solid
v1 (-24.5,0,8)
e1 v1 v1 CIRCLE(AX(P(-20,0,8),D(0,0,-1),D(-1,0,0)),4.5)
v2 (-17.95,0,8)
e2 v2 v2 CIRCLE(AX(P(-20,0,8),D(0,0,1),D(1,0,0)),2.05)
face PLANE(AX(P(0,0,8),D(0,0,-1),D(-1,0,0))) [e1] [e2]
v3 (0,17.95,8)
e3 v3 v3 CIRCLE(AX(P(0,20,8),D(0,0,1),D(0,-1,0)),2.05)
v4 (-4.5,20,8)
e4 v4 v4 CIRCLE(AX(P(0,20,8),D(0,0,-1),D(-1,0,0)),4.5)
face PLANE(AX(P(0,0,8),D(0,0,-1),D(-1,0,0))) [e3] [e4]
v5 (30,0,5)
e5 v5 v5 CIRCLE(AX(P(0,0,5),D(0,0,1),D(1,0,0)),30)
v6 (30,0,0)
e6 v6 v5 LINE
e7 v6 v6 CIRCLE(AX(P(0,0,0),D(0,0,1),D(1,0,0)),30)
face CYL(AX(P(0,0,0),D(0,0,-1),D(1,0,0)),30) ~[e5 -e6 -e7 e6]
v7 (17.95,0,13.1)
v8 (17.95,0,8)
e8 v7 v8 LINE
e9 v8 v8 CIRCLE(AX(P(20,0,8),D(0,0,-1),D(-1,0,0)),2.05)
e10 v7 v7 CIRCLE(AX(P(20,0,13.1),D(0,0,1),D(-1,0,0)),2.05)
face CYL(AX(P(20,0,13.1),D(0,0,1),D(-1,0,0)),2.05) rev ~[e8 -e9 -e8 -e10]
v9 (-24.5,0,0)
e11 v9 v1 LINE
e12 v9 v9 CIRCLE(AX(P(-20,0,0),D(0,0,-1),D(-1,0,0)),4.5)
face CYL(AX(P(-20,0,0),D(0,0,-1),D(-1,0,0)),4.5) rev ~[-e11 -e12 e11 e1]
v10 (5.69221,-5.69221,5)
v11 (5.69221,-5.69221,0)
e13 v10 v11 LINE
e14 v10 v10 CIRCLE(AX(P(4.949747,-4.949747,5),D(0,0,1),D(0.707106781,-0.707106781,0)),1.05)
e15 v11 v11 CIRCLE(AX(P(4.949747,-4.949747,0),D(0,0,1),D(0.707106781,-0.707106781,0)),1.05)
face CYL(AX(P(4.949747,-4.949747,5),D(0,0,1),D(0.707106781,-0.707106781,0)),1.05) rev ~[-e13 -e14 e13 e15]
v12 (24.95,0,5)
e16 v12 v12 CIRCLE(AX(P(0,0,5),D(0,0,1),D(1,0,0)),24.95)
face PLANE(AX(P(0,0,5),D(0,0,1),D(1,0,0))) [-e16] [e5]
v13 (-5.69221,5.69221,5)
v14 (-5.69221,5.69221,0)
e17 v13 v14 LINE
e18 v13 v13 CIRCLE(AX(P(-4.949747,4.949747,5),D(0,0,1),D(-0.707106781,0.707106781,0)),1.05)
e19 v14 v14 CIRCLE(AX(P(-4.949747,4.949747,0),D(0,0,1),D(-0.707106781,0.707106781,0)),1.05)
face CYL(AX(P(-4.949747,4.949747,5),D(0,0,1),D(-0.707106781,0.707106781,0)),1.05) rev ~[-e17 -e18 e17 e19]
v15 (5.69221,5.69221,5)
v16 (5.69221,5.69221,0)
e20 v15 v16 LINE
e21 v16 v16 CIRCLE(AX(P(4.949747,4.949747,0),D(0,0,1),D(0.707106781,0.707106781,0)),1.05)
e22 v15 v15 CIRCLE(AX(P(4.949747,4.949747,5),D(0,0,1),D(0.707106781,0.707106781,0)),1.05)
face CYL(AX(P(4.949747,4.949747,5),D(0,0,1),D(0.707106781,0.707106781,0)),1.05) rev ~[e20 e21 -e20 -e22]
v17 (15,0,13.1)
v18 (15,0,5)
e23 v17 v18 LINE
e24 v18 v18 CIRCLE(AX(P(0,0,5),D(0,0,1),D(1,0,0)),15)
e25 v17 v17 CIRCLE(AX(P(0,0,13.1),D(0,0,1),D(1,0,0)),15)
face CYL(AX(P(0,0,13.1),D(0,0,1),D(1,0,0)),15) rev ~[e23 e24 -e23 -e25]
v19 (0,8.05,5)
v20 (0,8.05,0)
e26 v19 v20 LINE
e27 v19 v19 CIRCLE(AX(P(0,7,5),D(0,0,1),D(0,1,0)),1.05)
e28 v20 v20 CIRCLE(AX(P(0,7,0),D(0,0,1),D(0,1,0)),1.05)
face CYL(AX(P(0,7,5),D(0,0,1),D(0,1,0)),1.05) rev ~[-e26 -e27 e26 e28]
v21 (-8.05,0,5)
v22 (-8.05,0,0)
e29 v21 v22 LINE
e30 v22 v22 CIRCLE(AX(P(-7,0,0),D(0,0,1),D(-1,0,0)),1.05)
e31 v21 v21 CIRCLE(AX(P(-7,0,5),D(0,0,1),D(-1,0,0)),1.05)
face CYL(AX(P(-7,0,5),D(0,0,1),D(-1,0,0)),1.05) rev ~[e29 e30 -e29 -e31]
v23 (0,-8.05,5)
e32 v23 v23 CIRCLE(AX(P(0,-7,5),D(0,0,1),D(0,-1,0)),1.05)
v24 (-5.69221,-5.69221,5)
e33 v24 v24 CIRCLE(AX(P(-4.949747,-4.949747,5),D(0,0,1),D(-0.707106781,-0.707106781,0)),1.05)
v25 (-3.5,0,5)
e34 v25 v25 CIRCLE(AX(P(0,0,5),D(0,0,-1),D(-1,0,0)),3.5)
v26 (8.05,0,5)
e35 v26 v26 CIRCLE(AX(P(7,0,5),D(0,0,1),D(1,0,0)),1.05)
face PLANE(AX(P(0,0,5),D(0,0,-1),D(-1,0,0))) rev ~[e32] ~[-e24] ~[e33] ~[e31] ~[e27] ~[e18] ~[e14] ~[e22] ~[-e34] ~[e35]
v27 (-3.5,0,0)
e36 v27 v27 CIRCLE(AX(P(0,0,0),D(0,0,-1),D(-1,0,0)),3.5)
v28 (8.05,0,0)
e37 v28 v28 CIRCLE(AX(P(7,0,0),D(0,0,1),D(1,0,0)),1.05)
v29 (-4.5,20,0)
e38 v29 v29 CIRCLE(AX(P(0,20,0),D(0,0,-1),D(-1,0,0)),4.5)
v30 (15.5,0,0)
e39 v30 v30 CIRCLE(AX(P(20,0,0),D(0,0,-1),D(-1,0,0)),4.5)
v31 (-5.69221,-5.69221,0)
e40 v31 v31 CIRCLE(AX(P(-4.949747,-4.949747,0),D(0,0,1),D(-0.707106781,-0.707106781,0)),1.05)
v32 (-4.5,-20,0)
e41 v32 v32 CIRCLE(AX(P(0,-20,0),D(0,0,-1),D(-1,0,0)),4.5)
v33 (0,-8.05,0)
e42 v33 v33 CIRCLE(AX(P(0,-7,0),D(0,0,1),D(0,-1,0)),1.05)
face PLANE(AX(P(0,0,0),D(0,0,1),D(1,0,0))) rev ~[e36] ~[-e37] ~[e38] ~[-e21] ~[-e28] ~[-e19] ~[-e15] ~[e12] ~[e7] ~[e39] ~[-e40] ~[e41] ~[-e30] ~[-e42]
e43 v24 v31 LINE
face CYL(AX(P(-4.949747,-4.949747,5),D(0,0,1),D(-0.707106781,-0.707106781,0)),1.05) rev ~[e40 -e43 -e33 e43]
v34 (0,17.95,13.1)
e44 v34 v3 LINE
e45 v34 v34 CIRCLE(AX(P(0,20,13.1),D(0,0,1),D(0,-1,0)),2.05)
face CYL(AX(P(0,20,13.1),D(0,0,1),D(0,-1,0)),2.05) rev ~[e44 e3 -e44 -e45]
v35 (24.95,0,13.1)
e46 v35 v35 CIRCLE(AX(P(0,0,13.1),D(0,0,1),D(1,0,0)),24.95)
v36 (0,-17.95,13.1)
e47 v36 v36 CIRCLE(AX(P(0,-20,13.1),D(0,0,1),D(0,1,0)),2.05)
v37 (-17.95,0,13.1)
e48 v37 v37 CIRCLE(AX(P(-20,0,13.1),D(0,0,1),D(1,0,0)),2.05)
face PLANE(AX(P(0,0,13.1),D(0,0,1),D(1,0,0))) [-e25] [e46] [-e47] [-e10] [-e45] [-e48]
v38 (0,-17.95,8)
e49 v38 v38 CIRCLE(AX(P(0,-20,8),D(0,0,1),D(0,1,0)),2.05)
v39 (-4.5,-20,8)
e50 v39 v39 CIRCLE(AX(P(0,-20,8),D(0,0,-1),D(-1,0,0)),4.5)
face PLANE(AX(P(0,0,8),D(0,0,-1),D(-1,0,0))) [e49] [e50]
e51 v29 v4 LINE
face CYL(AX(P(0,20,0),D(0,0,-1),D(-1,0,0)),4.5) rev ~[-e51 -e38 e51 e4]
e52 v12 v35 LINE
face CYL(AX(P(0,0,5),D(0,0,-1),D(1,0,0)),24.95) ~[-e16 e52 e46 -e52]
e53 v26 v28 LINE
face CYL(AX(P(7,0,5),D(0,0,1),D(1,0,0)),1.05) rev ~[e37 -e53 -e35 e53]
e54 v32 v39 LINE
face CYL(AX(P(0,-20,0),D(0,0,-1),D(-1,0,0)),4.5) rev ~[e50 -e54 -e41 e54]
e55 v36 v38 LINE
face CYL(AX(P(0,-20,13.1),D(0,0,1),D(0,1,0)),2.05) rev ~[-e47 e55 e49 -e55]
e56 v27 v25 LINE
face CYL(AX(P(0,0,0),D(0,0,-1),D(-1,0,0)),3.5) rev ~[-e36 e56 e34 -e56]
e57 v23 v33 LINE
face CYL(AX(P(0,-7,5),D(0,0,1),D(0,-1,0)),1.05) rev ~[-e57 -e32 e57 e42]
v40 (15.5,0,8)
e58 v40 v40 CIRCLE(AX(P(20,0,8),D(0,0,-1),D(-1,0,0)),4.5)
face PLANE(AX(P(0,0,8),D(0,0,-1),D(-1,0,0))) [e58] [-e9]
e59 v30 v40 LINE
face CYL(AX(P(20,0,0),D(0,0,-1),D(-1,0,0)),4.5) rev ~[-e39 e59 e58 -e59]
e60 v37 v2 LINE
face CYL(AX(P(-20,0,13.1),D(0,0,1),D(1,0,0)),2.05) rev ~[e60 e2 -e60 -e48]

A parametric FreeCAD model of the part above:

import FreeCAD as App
import Part
import Sketcher

V = App.Vector

doc = App.newDocument("Part")
body = doc.addObject("PartDesign::Body", "Body")

sketch1 = body.newObject("Sketcher::SketchObject", "Sketch")
sketch1.AttachmentSupport = (doc.getObject("XY_Plane"), [""])
sketch1.MapMode = "FlatFace"
sketch1.addGeometry(Part.Circle(V(0, 0, 0), V(0, 0, 1), 30), False)
sketch1.addConstraint([
    Sketcher.Constraint("Coincident", 0, 3, -1, 1),
    Sketcher.Constraint("Diameter", 0, 60.0),
])
pad1 = body.newObject("PartDesign::Pad", "Pad")
pad1.Profile = sketch1
pad1.Length = 5

sketch2 = body.newObject("Sketcher::SketchObject", "Sketch001")
sketch2.AttachmentSupport = (doc.getObject("XY_Plane"), [""])
sketch2.MapMode = "FlatFace"
sketch2.AttachmentOffset = App.Placement(V(0, 0, 5), App.Rotation())
sketch2.addGeometry(Part.Circle(V(0, 0, 0), V(0, 0, 1), 25), False)
sketch2.addConstraint([
    Sketcher.Constraint("Coincident", 0, 3, -1, 1),
    Sketcher.Constraint("Diameter", 0, 49.9),
])
pad2 = body.newObject("PartDesign::Pad", "Pad001")
pad2.Profile = sketch2
pad2.Length = 8.1

sketch3 = body.newObject("Sketcher::SketchObject", "Sketch002")
sketch3.AttachmentSupport = (doc.getObject("XY_Plane"), [""])
sketch3.MapMode = "FlatFace"
sketch3.AttachmentOffset = App.Placement(V(0, 0, 13.1), App.Rotation())
sketch3.addGeometry(Part.Circle(V(0, 0, 0), V(0, 0, 1), 15), False)
sketch3.addConstraint([
    Sketcher.Constraint("Coincident", 0, 3, -1, 1),
    Sketcher.Constraint("Diameter", 0, 30.0),
])
pocket1 = body.newObject("PartDesign::Pocket", "Pocket")
pocket1.Profile = sketch3
pocket1.Type = "ThroughAll"

sketch4 = body.newObject("Sketcher::SketchObject", "Sketch003")
sketch4.AttachmentSupport = (doc.getObject("XY_Plane"), [""])
sketch4.MapMode = "FlatFace"
sketch4.addGeometry(Part.Circle(V(0, 0, 0), V(0, 0, 1), 20), False)
sketch4.addConstraint([
    Sketcher.Constraint("Coincident", 0, 3, -1, 1),
    Sketcher.Constraint("Diameter", 0, 40.0),
])
pad3 = body.newObject("PartDesign::Pad", "Pad002")
pad3.Profile = sketch4
pad3.Length = 5

sketch5 = body.newObject("Sketcher::SketchObject", "Sketch004")
sketch5.AttachmentSupport = (doc.getObject("XY_Plane"), [""])
sketch5.MapMode = "FlatFace"
sketch5.addGeometry(Part.Circle(V(0, 0, 0), V(0, 0, 1), 3.5), False)
sketch5.addConstraint([
    Sketcher.Constraint("Coincident", 0, 3, -1, 1),
    Sketcher.Constraint("Diameter", 0, 7.0),
])
pocket2 = body.newObject("PartDesign::Pocket", "Pocket001")
pocket2.Profile = sketch5
pocket2.Type = "ThroughAll"
pocket2.Reversed = True

sketch6 = body.newObject("Sketcher::SketchObject", "Sketch005")
sketch6.AttachmentSupport = (doc.getObject("XY_Plane"), [""])
sketch6.MapMode = "FlatFace"
sketch6.AttachmentOffset = App.Placement(V(0, 0, 5), App.Rotation())
sketch6.addGeometry(Part.Circle(V(7, 0, 0), V(0, 0, 1), 1.1), False)
sketch6.addConstraint([
    Sketcher.Constraint("PointOnObject", 0, 3, -1),
    Sketcher.Constraint("Diameter", 0, 2.1),
    Sketcher.Constraint("DistanceX", -1, 1, 0, 3, 7.0),
])
pocket3 = body.newObject("PartDesign::Pocket", "Pocket002")
pocket3.Profile = sketch6
pocket3.Type = "ThroughAll"
doc.recompute()

polarpattern = body.newObject("PartDesign::PolarPattern", "PolarPattern")
polarpattern.Originals = [pocket3]
polarpattern.Axis = (doc.getObject("Z_Axis"), [""])
polarpattern.Angle = 360
polarpattern.Occurrences = 8
body.Tip = polarpattern

sketch7 = body.newObject("Sketcher::SketchObject", "Sketch006")
sketch7.AttachmentSupport = (doc.getObject("XY_Plane"), [""])
sketch7.MapMode = "FlatFace"
sketch7.AttachmentOffset = App.Placement(V(0, 0, 13.1), App.Rotation())
sketch7.addGeometry(Part.Circle(V(-20, 0, 0), V(0, 0, 1), 2), False)
sketch7.addConstraint([
    Sketcher.Constraint("PointOnObject", 0, 3, -1),
    Sketcher.Constraint("Diameter", 0, 4.1),
    Sketcher.Constraint("DistanceX", 0, 3, -1, 1, 20.0),
])
pocket4 = body.newObject("PartDesign::Pocket", "Pocket003")
pocket4.Profile = sketch7
pocket4.Type = "ThroughAll"
doc.recompute()

polarpattern2 = body.newObject("PartDesign::PolarPattern", "PolarPattern001")
polarpattern2.Originals = [pocket4]
polarpattern2.Axis = (doc.getObject("Z_Axis"), [""])
polarpattern2.Angle = 360
polarpattern2.Occurrences = 4
body.Tip = polarpattern2

sketch8 = body.newObject("Sketcher::SketchObject", "Sketch007")
sketch8.AttachmentSupport = (doc.getObject("XY_Plane"), [""])
sketch8.MapMode = "FlatFace"
sketch8.addGeometry([
    Part.Circle(V(0, -20, 0), V(0, 0, 1), 4.5),
    Part.Circle(V(0, -20, 0), V(0, 0, 1), 2),
    Part.Circle(V(-20, 0, 0), V(0, 0, 1), 4.5),
    Part.Circle(V(-20, 0, 0), V(0, 0, 1), 2),
    Part.Circle(V(0, 20, 0), V(0, 0, 1), 4.5),
    Part.Circle(V(0, 20, 0), V(0, 0, 1), 2),
    Part.Circle(V(20, 0, 0), V(0, 0, 1), 4.5),
    Part.Circle(V(20, 0, 0), V(0, 0, 1), 2),
], False)
sketch8.addConstraint([
    Sketcher.Constraint("Coincident", 1, 3, 0, 3),
    Sketcher.Constraint("Coincident", 3, 3, 2, 3),
    Sketcher.Constraint("Coincident", 5, 3, 4, 3),
    Sketcher.Constraint("Coincident", 7, 3, 6, 3),
    Sketcher.Constraint("Equal", 0, 2),
    Sketcher.Constraint("Equal", 1, 3),
    Sketcher.Constraint("Equal", 2, 4),
    Sketcher.Constraint("Equal", 3, 5),
    Sketcher.Constraint("Equal", 4, 6),
    Sketcher.Constraint("Equal", 5, 7),
    Sketcher.Constraint("Symmetric", 0, 3, 4, 3, -1, 1),
    Sketcher.Constraint("Symmetric", 2, 3, 6, 3, -1, 1),
    Sketcher.Constraint("PointOnObject", 0, 3, -2),
    Sketcher.Constraint("PointOnObject", 2, 3, -1),
    Sketcher.Constraint("Diameter", 0, 9.0),
    Sketcher.Constraint("Diameter", 1, 4.1),
    Sketcher.Constraint("DistanceY", 0, 3, -1, 1, 20.0),
    Sketcher.Constraint("DistanceX", 2, 3, -1, 1, 20.0),
])
pocket5 = body.newObject("PartDesign::Pocket", "Pocket004")
pocket5.Profile = sketch8
pocket5.Length = 8
pocket5.Reversed = True

doc.recompute()
